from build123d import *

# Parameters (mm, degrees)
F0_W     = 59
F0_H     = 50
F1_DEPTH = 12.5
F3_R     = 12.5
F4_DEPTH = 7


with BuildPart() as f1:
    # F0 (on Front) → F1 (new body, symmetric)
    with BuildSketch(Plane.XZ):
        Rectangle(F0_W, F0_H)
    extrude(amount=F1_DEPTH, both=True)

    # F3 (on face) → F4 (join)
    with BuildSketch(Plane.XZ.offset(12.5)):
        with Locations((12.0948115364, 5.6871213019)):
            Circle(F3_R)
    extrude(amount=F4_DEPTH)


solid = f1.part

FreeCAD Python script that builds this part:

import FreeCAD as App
import Part
import Sketcher
from FreeCAD import Vector
Q = App.Units.Quantity


def add_polygon(sketch, points):
    """Adds a closed chain of lines whose ends are joined by coincident constraints."""
    first, n = sketch.GeometryCount, len(points)
    for a, b in zip(points, points[1:] + points[:1]):
        sketch.addGeometry(Part.LineSegment(App.Vector(*a, 0), App.Vector(*b, 0)), False)
    for i in range(n):
        sketch.addConstraint(Sketcher.Constraint("Coincident", first + i, 2, first + (i + 1) % n, 1))

doc = App.newDocument("Part")
params = doc.addObject("Spreadsheet::Sheet", "Params")
for row, (alias, value) in enumerate([
    ("sketch1_width", "59 mm"),
    ("sketch1_height", "50 mm"),
    ("pad1_length", "25 mm"),
    ("sketch2_diameter", "25 mm"),
    ("pad2_length", "7 mm"),
], start=1):
    params.set(f"A{row}", alias)
    params.set(f"B{row}", "=" + value)
    params.setAlias(f"B{row}", alias)

body = doc.addObject("PartDesign::Body", "Body")

# Sketch on XZ plane
sketch1 = doc.addObject("Sketcher::SketchObject", "Sketch")
body.addObject(sketch1)
sketch1.AttachmentSupport = (doc.XZ_Plane, [""])
sketch1.MapMode = "FlatFace"
add_polygon(sketch1, [(-30, 25), (-30, -25), (30, -25), (30, 25)])  # lines 0-3
sketch1.addConstraint(Sketcher.Constraint("Vertical", 0))
sketch1.addConstraint(Sketcher.Constraint("Horizontal", 1))
sketch1.addConstraint(Sketcher.Constraint("Vertical", 2))
sketch1.addConstraint(Sketcher.Constraint("Horizontal", 3))
sketch1.addConstraint(Sketcher.Constraint("Symmetric", 0, 2, 2, 2, -1, 1))
sketch1.addConstraint(Sketcher.Constraint("DistanceX", 1, 1, 1, 2, Q("59 mm")))
sketch1.addConstraint(Sketcher.Constraint("DistanceY", 0, 2, 0, 1, Q("50 mm")))
sketch1.setExpression("Constraints[9]", "Params.sketch1_width")
sketch1.setExpression("Constraints[10]", "Params.sketch1_height")
pad1 = doc.addObject("PartDesign::Pad", "Pad")
body.addObject(pad1)
pad1.Profile = sketch1
pad1.setExpression("Length", "Params.pad1_length")
pad1.Midplane = True

# Sketch on XZ plane
sketch2 = doc.addObject("Sketcher::SketchObject", "Sketch001")
body.addObject(sketch2)
sketch2.AttachmentSupport = (doc.XZ_Plane, [""])
sketch2.MapMode = "FlatFace"
sketch2.AttachmentOffset = App.Placement(Vector(0, 0, 12.5), App.Rotation())
sketch2.addGeometry(Part.Circle(Vector(12, 6, 0), Vector(0, 0, 1), 12), False)
sketch2.addConstraint(Sketcher.Constraint("Diameter", 0, Q("25 mm")))
sketch2.addConstraint(Sketcher.Constraint("DistanceX", -1, 1, 0, 3, Q("12.094812 mm")))
sketch2.addConstraint(Sketcher.Constraint("DistanceY", -1, 1, 0, 3, Q("5.687121 mm")))
sketch2.setExpression("Constraints[0]", "Params.sketch2_diameter")
pad2 = doc.addObject("PartDesign::Pad", "Pad001")
body.addObject(pad2)
pad2.Profile = sketch2
pad2.setExpression("Length", "Params.pad2_length")

doc.recompute()
